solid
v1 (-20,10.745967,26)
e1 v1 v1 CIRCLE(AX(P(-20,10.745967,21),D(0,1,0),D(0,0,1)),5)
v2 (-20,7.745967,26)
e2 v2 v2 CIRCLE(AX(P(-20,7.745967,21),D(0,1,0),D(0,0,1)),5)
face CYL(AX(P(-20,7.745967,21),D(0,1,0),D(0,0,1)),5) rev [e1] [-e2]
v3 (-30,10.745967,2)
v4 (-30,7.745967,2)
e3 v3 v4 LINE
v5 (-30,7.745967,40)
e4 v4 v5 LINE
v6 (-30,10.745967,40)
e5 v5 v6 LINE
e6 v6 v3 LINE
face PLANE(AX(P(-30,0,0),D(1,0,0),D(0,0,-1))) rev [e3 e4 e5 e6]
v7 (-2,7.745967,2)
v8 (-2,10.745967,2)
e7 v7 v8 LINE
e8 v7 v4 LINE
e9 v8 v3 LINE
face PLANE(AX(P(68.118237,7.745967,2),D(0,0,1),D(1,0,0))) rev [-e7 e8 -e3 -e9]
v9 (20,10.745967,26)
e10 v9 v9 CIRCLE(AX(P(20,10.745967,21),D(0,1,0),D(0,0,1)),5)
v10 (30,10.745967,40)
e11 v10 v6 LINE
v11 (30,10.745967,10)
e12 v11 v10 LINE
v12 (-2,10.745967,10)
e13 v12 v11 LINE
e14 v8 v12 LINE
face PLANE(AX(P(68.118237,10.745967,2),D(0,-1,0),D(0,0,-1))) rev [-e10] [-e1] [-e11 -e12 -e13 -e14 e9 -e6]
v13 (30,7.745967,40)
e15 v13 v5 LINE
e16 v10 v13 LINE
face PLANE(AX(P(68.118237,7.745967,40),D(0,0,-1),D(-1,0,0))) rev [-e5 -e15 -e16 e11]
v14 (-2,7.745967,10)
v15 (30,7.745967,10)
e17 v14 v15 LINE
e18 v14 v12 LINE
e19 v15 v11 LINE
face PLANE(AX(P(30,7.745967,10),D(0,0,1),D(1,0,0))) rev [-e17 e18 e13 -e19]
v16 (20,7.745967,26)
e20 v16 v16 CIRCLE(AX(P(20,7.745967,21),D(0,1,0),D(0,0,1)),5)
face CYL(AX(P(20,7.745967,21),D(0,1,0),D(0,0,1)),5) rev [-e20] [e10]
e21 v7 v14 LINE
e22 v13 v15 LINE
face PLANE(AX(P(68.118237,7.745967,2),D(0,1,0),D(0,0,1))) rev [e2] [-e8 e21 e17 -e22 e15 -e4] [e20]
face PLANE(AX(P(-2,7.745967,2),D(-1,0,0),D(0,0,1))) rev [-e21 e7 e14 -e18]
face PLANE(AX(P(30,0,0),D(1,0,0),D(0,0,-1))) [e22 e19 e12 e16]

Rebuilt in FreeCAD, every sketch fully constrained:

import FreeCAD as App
import Part
import Sketcher
from FreeCAD import Vector

doc = App.newDocument("Part")
body = doc.addObject("PartDesign::Body", "Body")

# Sketch on YZ plane
sketch1 = doc.addObject("Sketcher::SketchObject", "Sketch")
body.addObject(sketch1)
sketch1.AttachmentSupport = (doc.YZ_Plane, [""])
sketch1.MapMode = "FlatFace"
sketch1.addGeometry(Part.LineSegment(Vector(10.7, 40, 0), Vector(7.7, 40, 0)), False)
sketch1.addGeometry(Part.LineSegment(Vector(7.7, 40, 0), Vector(7.7, 2, 0)), False)
sketch1.addGeometry(Part.LineSegment(Vector(7.7, 2, 0), Vector(10.7, 2, 0)), False)
sketch1.addGeometry(Part.LineSegment(Vector(10.7, 2, 0), Vector(10.7, 40, 0)), False)
sketch1.addConstraint(Sketcher.Constraint("Coincident", 0, 2, 1, 1))
sketch1.addConstraint(Sketcher.Constraint("Coincident", 1, 2, 2, 1))
sketch1.addConstraint(Sketcher.Constraint("Coincident", 2, 2, 3, 1))
sketch1.addConstraint(Sketcher.Constraint("Coincident", 3, 2, 0, 1))
sketch1.addConstraint(Sketcher.Constraint("Horizontal", 0))
sketch1.addConstraint(Sketcher.Constraint("Vertical", 1))
sketch1.addConstraint(Sketcher.Constraint("Horizontal", 2))
sketch1.addConstraint(Sketcher.Constraint("Vertical", 3))
sketch1.addConstraint(Sketcher.Constraint("DistanceX", 0, 2, 0, 1, 3.0))
sketch1.addConstraint(Sketcher.Constraint("DistanceY", 1, 2, 1, 1, 38.0))
sketch1.addConstraint(Sketcher.Constraint("DistanceY", -1, 1, 0, 2, 40.0))
sketch1.addConstraint(Sketcher.Constraint("DistanceX", -1, 1, 0, 2, 7.745967))
pad1 = doc.addObject("PartDesign::Pad", "Pad")
body.addObject(pad1)
pad1.Profile = sketch1
pad1.Type = "TwoLengths"
pad1.Length = 30
pad1.Length2 = 30

# Sketch on XZ plane
sketch2 = doc.addObject("Sketcher::SketchObject", "Sketch001")
body.addObject(sketch2)
sketch2.AttachmentSupport = (doc.XZ_Plane, [""])
sketch2.MapMode = "FlatFace"
sketch2.AttachmentOffset = App.Placement(Vector(0, 0, -10.745967), App.Rotation())
sketch2.addGeometry(Part.Circle(Vector(-20, 21, 0), Vector(0, 0, 1), 5), False)
sketch2.addGeometry(Part.Circle(Vector(20, 21, 0), Vector(0, 0, 1), 5), False)
sketch2.addGeometry(Part.LineSegment(Vector(-2, 2, 0), Vector(-2, 10, 0)), False)
sketch2.addGeometry(Part.LineSegment(Vector(-2, 10, 0), Vector(30, 10, 0)), False)
sketch2.addGeometry(Part.LineSegment(Vector(30, 10, 0), Vector(30, 2, 0)), False)
sketch2.addGeometry(Part.LineSegment(Vector(30, 2, 0), Vector(-2, 2, 0)), False)
sketch2.addConstraint(Sketcher.Constraint("Coincident", 2, 2, 3, 1))
sketch2.addConstraint(Sketcher.Constraint("Coincident", 3, 2, 4, 1))
sketch2.addConstraint(Sketcher.Constraint("Coincident", 4, 2, 5, 1))
sketch2.addConstraint(Sketcher.Constraint("Coincident", 5, 2, 2, 1))
sketch2.addConstraint(Sketcher.Constraint("Vertical", 2))
sketch2.addConstraint(Sketcher.Constraint("Horizontal", 3))
sketch2.addConstraint(Sketcher.Constraint("Vertical", 4))
sketch2.addConstraint(Sketcher.Constraint("Horizontal", 5))
sketch2.addConstraint(Sketcher.Constraint("Equal", 0, 1))
sketch2.addConstraint(Sketcher.Constraint("Symmetric", 0, 3, 1, 3, -2))
sketch2.addConstraint(Sketcher.Constraint("Diameter", 0, 10.0))
sketch2.addConstraint(Sketcher.Constraint("DistanceX", 3, 1, 3, 2, 32.0))
sketch2.addConstraint(Sketcher.Constraint("DistanceY", 2, 1, 2, 2, 8.0))
sketch2.addConstraint(Sketcher.Constraint("DistanceX", 0, 3, -1, 1, 20.0))
sketch2.addConstraint(Sketcher.Constraint("DistanceY", -1, 1, 0, 3, 21.0))
sketch2.addConstraint(Sketcher.Constraint("DistanceX", 2, 2, -1, 1, 2.0))
sketch2.addConstraint(Sketcher.Constraint("DistanceY", -1, 1, 2, 2, 10.0))
pocket1 = doc.addObject("PartDesign::Pocket", "Pocket")
body.addObject(pocket1)
pocket1.Profile = sketch2
pocket1.Type = "ThroughAll"
pocket1.Reversed = True

doc.recompute()
